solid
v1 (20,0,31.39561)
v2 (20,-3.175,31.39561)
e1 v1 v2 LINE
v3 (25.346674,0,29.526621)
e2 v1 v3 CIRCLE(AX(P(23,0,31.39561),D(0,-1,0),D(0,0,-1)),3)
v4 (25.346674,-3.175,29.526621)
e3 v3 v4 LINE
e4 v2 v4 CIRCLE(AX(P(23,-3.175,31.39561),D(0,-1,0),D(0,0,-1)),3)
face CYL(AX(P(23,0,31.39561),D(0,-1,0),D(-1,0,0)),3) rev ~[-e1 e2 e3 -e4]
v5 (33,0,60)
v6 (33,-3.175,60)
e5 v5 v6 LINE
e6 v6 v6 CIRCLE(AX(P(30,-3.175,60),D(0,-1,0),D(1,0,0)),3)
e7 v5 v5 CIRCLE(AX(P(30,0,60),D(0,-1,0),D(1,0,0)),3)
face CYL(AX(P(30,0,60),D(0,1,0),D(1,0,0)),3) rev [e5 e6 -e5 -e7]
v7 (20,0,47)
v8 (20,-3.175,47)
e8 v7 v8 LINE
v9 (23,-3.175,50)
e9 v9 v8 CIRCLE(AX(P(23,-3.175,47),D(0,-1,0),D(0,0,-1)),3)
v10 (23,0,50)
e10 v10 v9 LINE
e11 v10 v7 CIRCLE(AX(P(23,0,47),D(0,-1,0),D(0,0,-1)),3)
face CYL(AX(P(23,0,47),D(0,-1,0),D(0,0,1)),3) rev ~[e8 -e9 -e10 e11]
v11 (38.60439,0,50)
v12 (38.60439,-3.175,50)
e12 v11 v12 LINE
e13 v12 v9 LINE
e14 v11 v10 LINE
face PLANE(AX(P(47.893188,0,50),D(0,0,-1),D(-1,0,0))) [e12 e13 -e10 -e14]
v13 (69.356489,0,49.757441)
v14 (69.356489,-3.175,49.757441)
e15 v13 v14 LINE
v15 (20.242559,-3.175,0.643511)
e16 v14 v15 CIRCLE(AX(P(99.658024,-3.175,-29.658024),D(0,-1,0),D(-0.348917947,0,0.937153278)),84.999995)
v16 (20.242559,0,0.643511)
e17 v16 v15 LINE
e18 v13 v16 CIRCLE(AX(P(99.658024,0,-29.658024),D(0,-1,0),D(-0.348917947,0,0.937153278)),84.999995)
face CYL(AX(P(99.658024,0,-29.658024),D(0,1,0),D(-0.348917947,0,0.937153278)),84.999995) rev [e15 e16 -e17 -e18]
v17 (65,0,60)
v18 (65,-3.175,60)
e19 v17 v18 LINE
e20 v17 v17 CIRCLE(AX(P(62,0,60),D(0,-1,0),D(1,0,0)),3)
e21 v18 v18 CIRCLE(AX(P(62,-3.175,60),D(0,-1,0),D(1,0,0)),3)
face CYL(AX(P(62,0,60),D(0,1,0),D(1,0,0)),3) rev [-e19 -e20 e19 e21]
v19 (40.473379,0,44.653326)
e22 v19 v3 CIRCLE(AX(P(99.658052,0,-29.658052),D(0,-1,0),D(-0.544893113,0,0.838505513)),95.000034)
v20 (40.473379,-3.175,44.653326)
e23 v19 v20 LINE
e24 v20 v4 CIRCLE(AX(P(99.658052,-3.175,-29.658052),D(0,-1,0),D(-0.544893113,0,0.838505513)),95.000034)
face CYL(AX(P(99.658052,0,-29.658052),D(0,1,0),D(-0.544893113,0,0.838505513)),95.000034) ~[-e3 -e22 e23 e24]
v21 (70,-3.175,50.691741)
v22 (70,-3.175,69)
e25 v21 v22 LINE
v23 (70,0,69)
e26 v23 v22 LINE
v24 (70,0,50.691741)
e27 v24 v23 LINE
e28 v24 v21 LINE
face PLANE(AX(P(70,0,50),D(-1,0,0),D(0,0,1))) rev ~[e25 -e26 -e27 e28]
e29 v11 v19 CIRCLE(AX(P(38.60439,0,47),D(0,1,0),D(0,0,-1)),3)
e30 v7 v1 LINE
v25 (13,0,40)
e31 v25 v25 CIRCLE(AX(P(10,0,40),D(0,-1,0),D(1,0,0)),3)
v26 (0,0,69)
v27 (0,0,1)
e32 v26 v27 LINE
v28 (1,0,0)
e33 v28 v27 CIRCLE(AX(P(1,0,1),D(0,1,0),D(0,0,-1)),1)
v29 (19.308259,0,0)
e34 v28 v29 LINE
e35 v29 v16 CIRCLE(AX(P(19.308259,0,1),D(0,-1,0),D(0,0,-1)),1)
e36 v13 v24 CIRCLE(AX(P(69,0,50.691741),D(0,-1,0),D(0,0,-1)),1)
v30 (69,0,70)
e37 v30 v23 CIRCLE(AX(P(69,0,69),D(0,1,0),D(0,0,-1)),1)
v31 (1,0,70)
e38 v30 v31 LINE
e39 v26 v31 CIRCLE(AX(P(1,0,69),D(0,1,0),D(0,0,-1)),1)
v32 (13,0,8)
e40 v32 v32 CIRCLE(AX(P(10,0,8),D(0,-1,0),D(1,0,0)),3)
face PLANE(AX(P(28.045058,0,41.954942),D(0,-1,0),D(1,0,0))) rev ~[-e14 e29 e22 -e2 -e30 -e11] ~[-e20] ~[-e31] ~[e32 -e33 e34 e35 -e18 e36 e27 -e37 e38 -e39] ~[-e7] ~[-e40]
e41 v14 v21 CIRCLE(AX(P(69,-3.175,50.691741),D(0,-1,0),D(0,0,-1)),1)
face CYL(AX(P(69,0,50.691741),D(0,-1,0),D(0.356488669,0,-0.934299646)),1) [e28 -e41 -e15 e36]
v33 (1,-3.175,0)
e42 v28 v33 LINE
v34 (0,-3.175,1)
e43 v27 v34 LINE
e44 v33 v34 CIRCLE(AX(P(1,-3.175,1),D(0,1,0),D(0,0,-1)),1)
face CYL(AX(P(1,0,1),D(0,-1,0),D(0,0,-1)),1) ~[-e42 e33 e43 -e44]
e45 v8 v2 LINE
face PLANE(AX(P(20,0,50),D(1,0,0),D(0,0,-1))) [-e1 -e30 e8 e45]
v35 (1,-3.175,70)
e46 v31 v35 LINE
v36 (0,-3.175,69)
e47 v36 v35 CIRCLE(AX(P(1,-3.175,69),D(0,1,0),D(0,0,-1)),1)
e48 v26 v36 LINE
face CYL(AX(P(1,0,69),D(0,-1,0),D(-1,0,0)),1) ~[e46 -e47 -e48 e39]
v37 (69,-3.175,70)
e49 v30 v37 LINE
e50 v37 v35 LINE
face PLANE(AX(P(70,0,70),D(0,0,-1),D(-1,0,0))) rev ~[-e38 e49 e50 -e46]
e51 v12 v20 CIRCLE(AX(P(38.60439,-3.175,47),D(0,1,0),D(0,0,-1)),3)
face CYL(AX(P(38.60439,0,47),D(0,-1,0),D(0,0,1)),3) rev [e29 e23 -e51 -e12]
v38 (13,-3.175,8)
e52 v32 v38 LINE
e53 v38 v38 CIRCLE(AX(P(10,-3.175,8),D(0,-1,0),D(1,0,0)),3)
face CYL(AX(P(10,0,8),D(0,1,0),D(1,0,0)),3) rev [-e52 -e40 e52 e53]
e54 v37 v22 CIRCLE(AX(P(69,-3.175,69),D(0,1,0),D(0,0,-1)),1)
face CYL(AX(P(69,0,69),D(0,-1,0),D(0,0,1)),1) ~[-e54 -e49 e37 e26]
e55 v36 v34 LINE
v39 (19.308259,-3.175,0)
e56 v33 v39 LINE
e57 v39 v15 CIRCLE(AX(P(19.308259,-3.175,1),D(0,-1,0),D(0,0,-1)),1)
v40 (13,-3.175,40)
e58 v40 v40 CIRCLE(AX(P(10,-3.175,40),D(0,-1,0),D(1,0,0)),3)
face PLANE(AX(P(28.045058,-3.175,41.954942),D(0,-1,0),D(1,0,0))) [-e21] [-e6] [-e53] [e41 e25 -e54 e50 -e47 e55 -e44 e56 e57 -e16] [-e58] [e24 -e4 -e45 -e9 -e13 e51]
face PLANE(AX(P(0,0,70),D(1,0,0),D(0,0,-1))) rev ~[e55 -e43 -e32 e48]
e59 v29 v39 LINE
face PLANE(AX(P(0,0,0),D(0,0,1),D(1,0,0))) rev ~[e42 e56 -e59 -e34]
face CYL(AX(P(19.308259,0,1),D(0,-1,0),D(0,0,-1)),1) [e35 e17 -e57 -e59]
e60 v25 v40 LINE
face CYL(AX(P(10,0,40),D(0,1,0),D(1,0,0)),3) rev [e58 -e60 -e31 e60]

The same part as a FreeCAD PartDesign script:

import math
import FreeCAD as App
import Part
import Sketcher

V = App.Vector


def edges_at(feature, points):
    """Names of the edges that pass closest to the given points."""
    edges = feature.Shape.Edges
    near = lambda p: min(range(len(edges)), key=lambda i: edges[i].distToShape(Part.Vertex(*p))[0])
    return sorted({f"Edge{near(p) + 1}" for p in points})

doc = App.newDocument("Part")
body = doc.addObject("PartDesign::Body", "Body")

# Sketch on XZ plane
sketch1 = body.newObject("Sketcher::SketchObject", "Sketch")
sketch1.AttachmentSupport = (doc.getObject("XZ_Plane"), [""])
sketch1.MapMode = "FlatFace"
sketch1.addGeometry([
    Part.LineSegment(V(0, 0, 0), V(20, 0, 0)),  # 0
    Part.ArcOfCircle(Part.Circle(V(99.7, -29.7, 0), V(0, 0, 1), 85), math.radians(110), math.radians(160)),  # 1
    Part.LineSegment(V(70, 50, 0), V(70, 70, 0)),  # 2
    Part.LineSegment(V(70, 70, 0), V(0, 70, 0)),  # 3
    Part.LineSegment(V(0, 70, 0), V(0, 0, 0)),  # 4
    Part.Circle(V(10, 8, 0), V(0, 0, 1), 3),  # 5
    Part.Circle(V(10, 40, 0), V(0, 0, 1), 3),  # 6
    Part.LineSegment(V(20, 50, 0), V(47.9, 50, 0)),  # 7
    Part.ArcOfCircle(Part.Circle(V(99.7, -29.7, 0), V(0, 0, 1), 95), math.radians(123), math.radians(147)),  # 8
    Part.LineSegment(V(20, 22.1, 0), V(20, 50, 0)),  # 9
    Part.Circle(V(30, 60, 0), V(0, 0, 1), 3),  # 10
    Part.Circle(V(62, 60, 0), V(0, 0, 1), 3),  # 11
], False)
sketch1.addConstraint([
    Sketcher.Constraint("Coincident", 0, 2, 1, 2),
    Sketcher.Constraint("Coincident", 1, 1, 2, 1),
    Sketcher.Constraint("Coincident", 2, 2, 3, 1),
    Sketcher.Constraint("Coincident", 3, 2, 4, 1),
    Sketcher.Constraint("Coincident", 4, 2, 0, 1),
    Sketcher.Constraint("Coincident", 7, 2, 8, 1),
    Sketcher.Constraint("Coincident", 8, 2, 9, 1),
    Sketcher.Constraint("Coincident", 9, 2, 7, 1),
    Sketcher.Constraint("Horizontal", 0),
    Sketcher.Constraint("Vertical", 2),
    Sketcher.Constraint("Horizontal", 3),
    Sketcher.Constraint("Vertical", 4),
    Sketcher.Constraint("Horizontal", 7),
    Sketcher.Constraint("Vertical", 9),
    Sketcher.Constraint("Coincident", 4, 2, -1, 1),
    Sketcher.Constraint("Equal", 5, 6),
    Sketcher.Constraint("Equal", 6, 10),
    Sketcher.Constraint("Equal", 10, 11),
    Sketcher.Constraint("Horizontal", 10, 3, 11, 3),
    Sketcher.Constraint("Horizontal", 1, 1, 7, 2),
    Sketcher.Constraint("Vertical", 5, 3, 6, 3),
    Sketcher.Constraint("Vertical", 0, 2, 8, 2),
    Sketcher.Constraint("Equal", 0, 2),
    Sketcher.Constraint("Equal", 3, 4),
    Sketcher.Constraint("Equal", 7, 9),
    Sketcher.Constraint("Diameter", 5, 6.0),
    Sketcher.Constraint("DistanceX", 0, 1, 0, 2, 20.0),
    Sketcher.Constraint("DistanceX", 3, 2, 3, 1, 70.0),
    Sketcher.Constraint("DistanceX", -1, 1, 5, 3, 10.0),
    Sketcher.Constraint("DistanceY", -1, 1, 5, 3, 8.0),
    Sketcher.Constraint("DistanceY", -1, 1, 6, 3, 40.0),
    Sketcher.Constraint("DistanceX", -1, 1, 10, 3, 30.0),
    Sketcher.Constraint("DistanceY", -1, 1, 10, 3, 60.0),
    Sketcher.Constraint("DistanceX", -1, 1, 11, 3, 62.0),
    Sketcher.Constraint("Radius", 1, 84.999995),
    Sketcher.Constraint("Radius", 8, 95.000034),
    Sketcher.Constraint("DistanceX", 7, 1, 7, 2, 27.893188),
])
pad1 = body.newObject("PartDesign::Pad", "Pad")
pad1.Profile = sketch1
pad1.Length = 3.175
doc.recompute()

fillet = body.newObject("PartDesign::Fillet", "Fillet")
fillet.Base = (pad1, edges_at(pad1, [(20, -1.587, 22.107), (47.893, -1.587, 50), (20, -1.587, 50)]))
fillet.Radius = 3
doc.recompute()

fillet2 = body.newObject("PartDesign::Fillet", "Fillet001")
fillet2.Base = (fillet, edges_at(fillet, [
    (70, -1.587, 50),
    (70, -1.587, 70),
    (20, -1.587, 0),
    (0, -1.587, 0),
    (0, -1.587, 70),
]))
fillet2.Radius = 1

doc.recompute()
